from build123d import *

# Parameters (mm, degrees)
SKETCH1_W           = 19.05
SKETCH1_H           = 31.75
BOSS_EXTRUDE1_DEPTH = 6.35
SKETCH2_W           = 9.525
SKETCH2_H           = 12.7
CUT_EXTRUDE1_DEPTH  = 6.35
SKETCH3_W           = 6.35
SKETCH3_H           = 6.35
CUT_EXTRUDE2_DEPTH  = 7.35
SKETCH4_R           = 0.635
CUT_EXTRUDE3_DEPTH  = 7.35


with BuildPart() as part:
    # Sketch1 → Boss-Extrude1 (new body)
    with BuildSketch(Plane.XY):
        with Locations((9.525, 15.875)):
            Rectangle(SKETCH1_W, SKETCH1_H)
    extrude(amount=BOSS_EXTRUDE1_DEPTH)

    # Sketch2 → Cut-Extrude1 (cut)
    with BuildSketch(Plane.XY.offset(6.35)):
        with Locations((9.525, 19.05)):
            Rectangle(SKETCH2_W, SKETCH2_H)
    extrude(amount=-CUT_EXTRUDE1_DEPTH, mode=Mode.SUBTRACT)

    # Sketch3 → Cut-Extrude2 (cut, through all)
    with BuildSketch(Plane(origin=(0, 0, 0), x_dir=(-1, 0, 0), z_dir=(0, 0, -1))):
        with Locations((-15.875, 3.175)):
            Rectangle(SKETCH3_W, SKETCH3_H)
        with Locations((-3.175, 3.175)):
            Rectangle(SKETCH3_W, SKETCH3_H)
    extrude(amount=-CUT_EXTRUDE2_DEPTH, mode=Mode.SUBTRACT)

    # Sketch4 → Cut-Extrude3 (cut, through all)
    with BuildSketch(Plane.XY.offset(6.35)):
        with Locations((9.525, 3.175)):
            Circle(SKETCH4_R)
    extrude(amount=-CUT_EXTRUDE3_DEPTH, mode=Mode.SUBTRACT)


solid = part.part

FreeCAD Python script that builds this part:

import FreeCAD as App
import Part
import Sketcher
Q = App.Units.Quantity

doc = App.newDocument("Part")
body = doc.addObject("PartDesign::Body", "Body")

# Sketch on XY plane
sketch1 = body.newObject("Sketcher::SketchObject", "Sketch")
sketch1.AttachmentSupport = (doc.getObject("XY_Plane"), [""])
sketch1.MapMode = "FlatFace"
sketch1.addGeometry(Part.LineSegment(App.Vector(0, 32, 0), App.Vector(0, 0, 0)), False)
sketch1.addGeometry(Part.LineSegment(App.Vector(0, 0, 0), App.Vector(19, 0, 0)), False)
sketch1.addGeometry(Part.LineSegment(App.Vector(19, 0, 0), App.Vector(19, 32, 0)), False)
sketch1.addGeometry(Part.LineSegment(App.Vector(19, 32, 0), App.Vector(0, 32, 0)), False)
sketch1.addConstraint(Sketcher.Constraint("Coincident", 0, 2, 1, 1))
sketch1.addConstraint(Sketcher.Constraint("Coincident", 1, 2, 2, 1))
sketch1.addConstraint(Sketcher.Constraint("Coincident", 2, 2, 3, 1))
sketch1.addConstraint(Sketcher.Constraint("Coincident", 3, 2, 0, 1))
sketch1.addConstraint(Sketcher.Constraint("Vertical", 0))
sketch1.addConstraint(Sketcher.Constraint("Horizontal", 1))
sketch1.addConstraint(Sketcher.Constraint("Vertical", 2))
sketch1.addConstraint(Sketcher.Constraint("Horizontal", 3))
sketch1.addConstraint(Sketcher.Constraint("Coincident", 0, 2, -1, 1))
sketch1.addConstraint(Sketcher.Constraint("DistanceX", 1, 1, 1, 2, Q("0.75 in")))
sketch1.addConstraint(Sketcher.Constraint("DistanceY", 0, 2, 0, 1, Q("1.25 in")))
pad1 = body.newObject("PartDesign::Pad", "Pad")
pad1.Profile = sketch1
pad1.Length = Q("0.25 in")

# Sketch on XY plane
sketch2 = body.newObject("Sketcher::SketchObject", "Sketch001")
sketch2.AttachmentSupport = (doc.getObject("XY_Plane"), [""])
sketch2.MapMode = "FlatFace"
sketch2.AttachmentOffset = App.Placement(App.Vector(0, 0, 0.25 * 25.4), App.Rotation())
sketch2.addGeometry(Part.LineSegment(App.Vector(5, 25, 0), App.Vector(5, 13, 0)), False)
sketch2.addGeometry(Part.LineSegment(App.Vector(5, 13, 0), App.Vector(14, 13, 0)), False)
sketch2.addGeometry(Part.LineSegment(App.Vector(14, 13, 0), App.Vector(14, 25, 0)), False)
sketch2.addGeometry(Part.LineSegment(App.Vector(14, 25, 0), App.Vector(5, 25, 0)), False)
sketch2.addConstraint(Sketcher.Constraint("Coincident", 0, 2, 1, 1))
sketch2.addConstraint(Sketcher.Constraint("Coincident", 1, 2, 2, 1))
sketch2.addConstraint(Sketcher.Constraint("Coincident", 2, 2, 3, 1))
sketch2.addConstraint(Sketcher.Constraint("Coincident", 3, 2, 0, 1))
sketch2.addConstraint(Sketcher.Constraint("Vertical", 0))
sketch2.addConstraint(Sketcher.Constraint("Horizontal", 1))
sketch2.addConstraint(Sketcher.Constraint("Vertical", 2))
sketch2.addConstraint(Sketcher.Constraint("Horizontal", 3))
sketch2.addConstraint(Sketcher.Constraint("DistanceY", 0, 2, 0, 1, Q("0.5 in")))
sketch2.addConstraint(Sketcher.Constraint("DistanceY", -1, 1, 2, 2, Q("1 in")))
sketch2.addConstraint(Sketcher.Constraint("DistanceX", 1, 1, 1, 2, Q("0.375 in")))
sketch2.addConstraint(Sketcher.Constraint("DistanceX", -1, 1, 0, 2, Q("0.1875 in")))
pocket1 = body.newObject("PartDesign::Pocket", "Pocket")
pocket1.Profile = sketch2
pocket1.Length = Q("0.25 in")

# Sketch on XY plane
sketch3 = body.newObject("Sketcher::SketchObject", "Sketch002")
sketch3.AttachmentSupport = (doc.getObject("XY_Plane"), [""])
sketch3.MapMode = "FlatFace"
sketch3.addGeometry(Part.LineSegment(App.Vector(19, 6, 0), App.Vector(19, 0, 0)), False)
sketch3.addGeometry(Part.LineSegment(App.Vector(19, 0, 0), App.Vector(13, 0, 0)), False)
sketch3.addGeometry(Part.LineSegment(App.Vector(13, 0, 0), App.Vector(13, 6, 0)), False)
sketch3.addGeometry(Part.LineSegment(App.Vector(13, 6, 0), App.Vector(19, 6, 0)), False)
sketch3.addGeometry(Part.LineSegment(App.Vector(6, 6, 0), App.Vector(6, 0, 0)), False)
sketch3.addGeometry(Part.LineSegment(App.Vector(6, 0, 0), App.Vector(0, 0, 0)), False)
sketch3.addGeometry(Part.LineSegment(App.Vector(0, 0, 0), App.Vector(0, 6, 0)), False)
sketch3.addGeometry(Part.LineSegment(App.Vector(0, 6, 0), App.Vector(6, 6, 0)), False)
sketch3.addConstraint(Sketcher.Constraint("Coincident", 0, 2, 1, 1))
sketch3.addConstraint(Sketcher.Constraint("Coincident", 1, 2, 2, 1))
sketch3.addConstraint(Sketcher.Constraint("Coincident", 2, 2, 3, 1))
sketch3.addConstraint(Sketcher.Constraint("Coincident", 3, 2, 0, 1))
sketch3.addConstraint(Sketcher.Constraint("Coincident", 4, 2, 5, 1))
sketch3.addConstraint(Sketcher.Constraint("Coincident", 5, 2, 6, 1))
sketch3.addConstraint(Sketcher.Constraint("Coincident", 6, 2, 7, 1))
sketch3.addConstraint(Sketcher.Constraint("Coincident", 7, 2, 4, 1))
sketch3.addConstraint(Sketcher.Constraint("Vertical", 0))
sketch3.addConstraint(Sketcher.Constraint("Horizontal", 1))
sketch3.addConstraint(Sketcher.Constraint("Vertical", 2))
sketch3.addConstraint(Sketcher.Constraint("Horizontal", 3))
sketch3.addConstraint(Sketcher.Constraint("Vertical", 4))
sketch3.addConstraint(Sketcher.Constraint("Horizontal", 5))
sketch3.addConstraint(Sketcher.Constraint("Vertical", 6))
sketch3.addConstraint(Sketcher.Constraint("Horizontal", 7))
sketch3.addConstraint(Sketcher.Constraint("Coincident", 5, 2, -1, 1))
sketch3.addConstraint(Sketcher.Constraint("PointOnObject", 0, 2, -1))
sketch3.addConstraint(Sketcher.Constraint("Horizontal", 3, 2, 6, 2))
sketch3.addConstraint(Sketcher.Constraint("Equal", 3, 5))
sketch3.addConstraint(Sketcher.Constraint("Equal", 7, 0))
sketch3.addConstraint(Sketcher.Constraint("DistanceX", 1, 2, 1, 1, Q("0.25 in")))
sketch3.addConstraint(Sketcher.Constraint("DistanceX", -1, 1, 1, 2, Q("0.5 in")))
pocket2 = body.newObject("PartDesign::Pocket", "Pocket001")
pocket2.Profile = sketch3
pocket2.Type = "ThroughAll"
pocket2.Reversed = True

# Sketch on XY plane
sketch4 = body.newObject("Sketcher::SketchObject", "Sketch003")
sketch4.AttachmentSupport = (doc.getObject("XY_Plane"), [""])
sketch4.MapMode = "FlatFace"
sketch4.AttachmentOffset = App.Placement(App.Vector(0, 0, 0.25 * 25.4), App.Rotation())
sketch4.addGeometry(Part.Circle(App.Vector(9.5, 3.2, 0), App.Vector(0, 0, 1), 0.6), False)
sketch4.addConstraint(Sketcher.Constraint("Diameter", 0, Q("0.05 in")))
sketch4.addConstraint(Sketcher.Constraint("DistanceX", -1, 1, 0, 3, Q("0.375 in")))
sketch4.addConstraint(Sketcher.Constraint("DistanceY", -1, 1, 0, 3, Q("0.125 in")))
pocket3 = body.newObject("PartDesign::Pocket", "Pocket002")
pocket3.Profile = sketch4
pocket3.Type = "ThroughAll"

doc.recompute()
